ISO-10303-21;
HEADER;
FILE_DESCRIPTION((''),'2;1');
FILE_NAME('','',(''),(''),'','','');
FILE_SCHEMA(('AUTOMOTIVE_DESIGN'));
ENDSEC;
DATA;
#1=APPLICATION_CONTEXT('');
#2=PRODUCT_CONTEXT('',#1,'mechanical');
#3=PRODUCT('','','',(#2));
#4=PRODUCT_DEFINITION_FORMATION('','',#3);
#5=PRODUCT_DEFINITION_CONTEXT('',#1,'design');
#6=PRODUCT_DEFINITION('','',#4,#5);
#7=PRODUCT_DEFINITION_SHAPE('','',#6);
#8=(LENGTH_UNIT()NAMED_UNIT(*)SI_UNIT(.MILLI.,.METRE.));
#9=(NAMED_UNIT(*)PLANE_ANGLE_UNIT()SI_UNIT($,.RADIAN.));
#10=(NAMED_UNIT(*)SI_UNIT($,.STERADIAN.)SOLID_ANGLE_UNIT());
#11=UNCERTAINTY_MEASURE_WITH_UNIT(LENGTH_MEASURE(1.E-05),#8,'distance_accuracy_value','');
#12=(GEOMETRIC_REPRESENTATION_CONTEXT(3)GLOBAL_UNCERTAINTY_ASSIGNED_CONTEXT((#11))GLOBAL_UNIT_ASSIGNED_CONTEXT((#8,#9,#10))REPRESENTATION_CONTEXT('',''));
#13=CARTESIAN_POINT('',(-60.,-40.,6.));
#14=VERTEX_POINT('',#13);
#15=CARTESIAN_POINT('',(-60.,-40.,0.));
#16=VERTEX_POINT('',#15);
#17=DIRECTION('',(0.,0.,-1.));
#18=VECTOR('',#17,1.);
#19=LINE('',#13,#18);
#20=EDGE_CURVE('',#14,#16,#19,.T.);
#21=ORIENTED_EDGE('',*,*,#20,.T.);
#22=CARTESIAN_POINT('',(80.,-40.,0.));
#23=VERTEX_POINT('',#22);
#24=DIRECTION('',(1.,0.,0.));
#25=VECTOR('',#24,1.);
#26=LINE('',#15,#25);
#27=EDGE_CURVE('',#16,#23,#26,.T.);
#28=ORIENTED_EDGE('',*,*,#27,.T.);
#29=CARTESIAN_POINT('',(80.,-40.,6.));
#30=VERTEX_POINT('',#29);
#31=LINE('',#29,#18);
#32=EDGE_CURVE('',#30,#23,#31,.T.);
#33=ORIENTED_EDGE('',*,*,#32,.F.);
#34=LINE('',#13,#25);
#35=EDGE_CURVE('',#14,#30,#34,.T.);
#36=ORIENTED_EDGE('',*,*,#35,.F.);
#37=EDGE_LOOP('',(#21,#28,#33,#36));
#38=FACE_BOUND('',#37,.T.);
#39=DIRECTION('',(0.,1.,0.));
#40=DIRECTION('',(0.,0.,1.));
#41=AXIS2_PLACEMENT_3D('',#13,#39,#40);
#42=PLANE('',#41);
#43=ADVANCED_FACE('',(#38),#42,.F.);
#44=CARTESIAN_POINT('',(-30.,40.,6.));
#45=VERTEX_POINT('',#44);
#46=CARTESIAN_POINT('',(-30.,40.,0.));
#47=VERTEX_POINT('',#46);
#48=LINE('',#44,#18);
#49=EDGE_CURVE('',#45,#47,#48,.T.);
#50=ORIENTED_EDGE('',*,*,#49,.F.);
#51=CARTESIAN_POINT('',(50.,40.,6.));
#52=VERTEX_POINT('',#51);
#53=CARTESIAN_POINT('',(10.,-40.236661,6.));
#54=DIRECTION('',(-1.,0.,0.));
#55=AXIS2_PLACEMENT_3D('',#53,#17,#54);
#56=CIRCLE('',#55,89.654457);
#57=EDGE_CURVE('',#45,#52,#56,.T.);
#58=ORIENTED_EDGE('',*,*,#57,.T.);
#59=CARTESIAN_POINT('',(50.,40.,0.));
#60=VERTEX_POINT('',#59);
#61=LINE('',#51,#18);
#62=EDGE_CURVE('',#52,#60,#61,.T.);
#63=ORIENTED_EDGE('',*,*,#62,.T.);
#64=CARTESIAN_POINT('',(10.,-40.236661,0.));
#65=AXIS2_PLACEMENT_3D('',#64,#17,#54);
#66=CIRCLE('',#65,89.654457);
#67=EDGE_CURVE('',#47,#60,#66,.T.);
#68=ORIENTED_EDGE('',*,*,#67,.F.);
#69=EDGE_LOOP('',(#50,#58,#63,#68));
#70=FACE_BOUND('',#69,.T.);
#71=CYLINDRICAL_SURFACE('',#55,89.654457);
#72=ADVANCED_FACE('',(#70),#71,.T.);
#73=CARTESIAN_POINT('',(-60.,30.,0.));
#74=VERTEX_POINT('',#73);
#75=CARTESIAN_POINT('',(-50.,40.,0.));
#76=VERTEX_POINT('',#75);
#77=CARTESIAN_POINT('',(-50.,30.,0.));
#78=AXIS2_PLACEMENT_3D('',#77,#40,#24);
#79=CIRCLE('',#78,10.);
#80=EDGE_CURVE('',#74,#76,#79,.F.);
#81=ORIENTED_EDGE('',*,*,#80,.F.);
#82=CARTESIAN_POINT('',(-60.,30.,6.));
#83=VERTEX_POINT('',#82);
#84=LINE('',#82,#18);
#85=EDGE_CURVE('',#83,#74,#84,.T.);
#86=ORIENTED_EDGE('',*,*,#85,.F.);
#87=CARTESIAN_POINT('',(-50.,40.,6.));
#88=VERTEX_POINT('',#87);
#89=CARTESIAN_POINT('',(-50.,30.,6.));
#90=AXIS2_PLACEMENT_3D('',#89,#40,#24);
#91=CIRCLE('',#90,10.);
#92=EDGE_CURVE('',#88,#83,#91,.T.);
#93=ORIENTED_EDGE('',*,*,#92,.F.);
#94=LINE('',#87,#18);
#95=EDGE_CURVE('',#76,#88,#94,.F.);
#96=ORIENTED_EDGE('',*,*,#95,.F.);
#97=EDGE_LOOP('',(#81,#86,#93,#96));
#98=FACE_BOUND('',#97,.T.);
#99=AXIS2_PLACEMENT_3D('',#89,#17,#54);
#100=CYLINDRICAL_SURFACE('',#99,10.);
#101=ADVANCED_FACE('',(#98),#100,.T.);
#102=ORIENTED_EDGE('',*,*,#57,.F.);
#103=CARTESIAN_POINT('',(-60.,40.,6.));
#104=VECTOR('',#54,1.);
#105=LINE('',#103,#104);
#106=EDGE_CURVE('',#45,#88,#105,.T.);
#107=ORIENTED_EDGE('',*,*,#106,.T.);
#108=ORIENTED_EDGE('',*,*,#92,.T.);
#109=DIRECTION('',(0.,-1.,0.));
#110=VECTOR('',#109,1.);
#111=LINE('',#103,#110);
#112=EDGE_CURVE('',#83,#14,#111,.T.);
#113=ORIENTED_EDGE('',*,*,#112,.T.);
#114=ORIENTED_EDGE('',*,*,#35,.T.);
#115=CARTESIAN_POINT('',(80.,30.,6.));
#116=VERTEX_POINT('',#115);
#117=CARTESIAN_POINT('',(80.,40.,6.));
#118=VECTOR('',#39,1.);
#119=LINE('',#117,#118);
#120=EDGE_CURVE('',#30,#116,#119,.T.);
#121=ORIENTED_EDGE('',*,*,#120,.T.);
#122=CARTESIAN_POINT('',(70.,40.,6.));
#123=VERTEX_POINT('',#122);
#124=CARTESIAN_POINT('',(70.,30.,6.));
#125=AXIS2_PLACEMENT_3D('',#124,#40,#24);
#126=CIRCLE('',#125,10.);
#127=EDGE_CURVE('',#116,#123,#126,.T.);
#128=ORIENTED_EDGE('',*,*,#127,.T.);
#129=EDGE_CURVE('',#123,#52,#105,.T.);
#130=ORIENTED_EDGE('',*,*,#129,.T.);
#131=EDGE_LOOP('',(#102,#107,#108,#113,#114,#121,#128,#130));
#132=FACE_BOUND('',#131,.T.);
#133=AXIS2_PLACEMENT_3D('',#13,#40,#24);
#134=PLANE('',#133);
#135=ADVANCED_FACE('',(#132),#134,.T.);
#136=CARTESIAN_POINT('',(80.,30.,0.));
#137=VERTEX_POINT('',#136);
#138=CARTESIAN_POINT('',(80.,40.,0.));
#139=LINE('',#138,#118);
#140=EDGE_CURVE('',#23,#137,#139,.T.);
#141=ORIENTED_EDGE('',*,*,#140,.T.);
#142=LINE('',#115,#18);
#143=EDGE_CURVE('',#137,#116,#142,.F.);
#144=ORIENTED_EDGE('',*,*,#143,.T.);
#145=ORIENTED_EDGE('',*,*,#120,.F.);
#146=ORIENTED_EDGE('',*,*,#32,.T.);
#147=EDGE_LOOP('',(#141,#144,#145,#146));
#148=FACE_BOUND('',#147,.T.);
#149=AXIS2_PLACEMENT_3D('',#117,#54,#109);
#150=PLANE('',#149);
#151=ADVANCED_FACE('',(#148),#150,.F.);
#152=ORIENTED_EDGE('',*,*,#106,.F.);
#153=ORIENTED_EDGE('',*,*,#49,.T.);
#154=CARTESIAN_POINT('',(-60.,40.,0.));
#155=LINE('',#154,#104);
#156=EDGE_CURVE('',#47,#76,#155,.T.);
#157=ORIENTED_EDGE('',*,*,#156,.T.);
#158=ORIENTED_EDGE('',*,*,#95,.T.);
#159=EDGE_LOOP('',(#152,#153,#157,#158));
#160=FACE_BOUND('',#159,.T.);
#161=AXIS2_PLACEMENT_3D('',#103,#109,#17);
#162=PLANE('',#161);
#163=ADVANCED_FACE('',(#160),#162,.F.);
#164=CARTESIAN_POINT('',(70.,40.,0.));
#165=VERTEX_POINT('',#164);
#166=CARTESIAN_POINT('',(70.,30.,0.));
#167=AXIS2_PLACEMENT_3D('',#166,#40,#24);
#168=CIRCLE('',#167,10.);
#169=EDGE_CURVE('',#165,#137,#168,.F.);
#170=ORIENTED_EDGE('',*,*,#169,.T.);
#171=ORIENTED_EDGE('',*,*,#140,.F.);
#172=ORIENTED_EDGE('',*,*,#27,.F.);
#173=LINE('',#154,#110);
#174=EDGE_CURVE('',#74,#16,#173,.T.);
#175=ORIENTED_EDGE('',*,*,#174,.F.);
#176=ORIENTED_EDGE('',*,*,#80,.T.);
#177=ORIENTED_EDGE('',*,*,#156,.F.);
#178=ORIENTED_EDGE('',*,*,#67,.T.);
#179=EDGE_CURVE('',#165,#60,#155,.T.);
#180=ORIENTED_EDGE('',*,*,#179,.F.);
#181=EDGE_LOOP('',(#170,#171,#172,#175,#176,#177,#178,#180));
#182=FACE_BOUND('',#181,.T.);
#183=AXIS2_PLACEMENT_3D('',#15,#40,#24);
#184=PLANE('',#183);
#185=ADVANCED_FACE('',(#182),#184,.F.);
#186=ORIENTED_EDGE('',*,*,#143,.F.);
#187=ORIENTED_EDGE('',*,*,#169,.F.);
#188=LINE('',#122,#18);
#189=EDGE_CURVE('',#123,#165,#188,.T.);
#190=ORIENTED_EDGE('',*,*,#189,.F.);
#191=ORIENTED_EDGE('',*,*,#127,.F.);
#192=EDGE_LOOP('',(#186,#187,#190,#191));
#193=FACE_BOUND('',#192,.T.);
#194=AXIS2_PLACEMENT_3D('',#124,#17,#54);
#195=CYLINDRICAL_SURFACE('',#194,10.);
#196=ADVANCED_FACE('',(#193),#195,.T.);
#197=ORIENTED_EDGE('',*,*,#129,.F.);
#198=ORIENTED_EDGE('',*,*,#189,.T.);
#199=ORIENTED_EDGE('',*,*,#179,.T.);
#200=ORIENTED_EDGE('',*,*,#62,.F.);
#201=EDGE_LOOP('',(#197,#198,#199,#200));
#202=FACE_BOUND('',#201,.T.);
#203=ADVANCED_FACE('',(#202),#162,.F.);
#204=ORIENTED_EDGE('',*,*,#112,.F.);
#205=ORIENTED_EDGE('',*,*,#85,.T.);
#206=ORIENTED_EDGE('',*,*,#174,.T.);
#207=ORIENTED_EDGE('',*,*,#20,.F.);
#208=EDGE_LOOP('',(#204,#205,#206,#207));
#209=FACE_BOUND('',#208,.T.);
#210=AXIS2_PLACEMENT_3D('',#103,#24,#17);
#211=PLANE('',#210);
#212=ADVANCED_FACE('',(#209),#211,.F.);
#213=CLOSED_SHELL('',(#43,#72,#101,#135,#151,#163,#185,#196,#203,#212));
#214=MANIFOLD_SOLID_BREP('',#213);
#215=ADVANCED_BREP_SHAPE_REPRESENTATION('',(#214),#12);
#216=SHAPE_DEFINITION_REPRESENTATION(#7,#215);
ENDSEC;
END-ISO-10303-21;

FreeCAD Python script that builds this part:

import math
import FreeCAD as App
import Part
import Sketcher

V = App.Vector
Q = App.Units.Quantity


def edges_at(feature, points):
    """Names of the edges that pass closest to the given points."""
    edges = feature.Shape.Edges
    near = lambda p: min(range(len(edges)), key=lambda i: edges[i].distToShape(Part.Vertex(*p))[0])
    return sorted({f"Edge{near(p) + 1}" for p in points})

doc = App.newDocument("Part")
body = doc.addObject("PartDesign::Body", "Body")

# Sketch on XY plane
sketch1 = body.newObject("Sketcher::SketchObject", "Sketch")
sketch1.AttachmentSupport = (doc.getObject("XY_Plane"), [""])
sketch1.MapMode = "FlatFace"
sketch1.addGeometry(Part.LineSegment(V(-60, 40, 0), V(-60, -40, 0)), False)
sketch1.addGeometry(Part.LineSegment(V(-60, -40, 0), V(80, -40, 0)), False)
sketch1.addGeometry(Part.LineSegment(V(80, -40, 0), V(80, 40, 0)), False)
sketch1.addGeometry(Part.LineSegment(V(80, 40, 0), V(-60, 40, 0)), False)
sketch1.addConstraint(Sketcher.Constraint("Coincident", 0, 2, 1, 1))
sketch1.addConstraint(Sketcher.Constraint("Coincident", 1, 2, 2, 1))
sketch1.addConstraint(Sketcher.Constraint("Coincident", 2, 2, 3, 1))
sketch1.addConstraint(Sketcher.Constraint("Coincident", 3, 2, 0, 1))
sketch1.addConstraint(Sketcher.Constraint("Vertical", 0))
sketch1.addConstraint(Sketcher.Constraint("Horizontal", 1))
sketch1.addConstraint(Sketcher.Constraint("Vertical", 2))
sketch1.addConstraint(Sketcher.Constraint("Horizontal", 3))
sketch1.addConstraint(Sketcher.Constraint("DistanceX", 1, 1, 1, 2, Q("140 mm")))
sketch1.addConstraint(Sketcher.Constraint("DistanceY", 0, 2, 0, 1, Q("80 mm")))
sketch1.addConstraint(Sketcher.Constraint("DistanceX", 0, 2, -1, 1, Q("60 mm")))
sketch1.addConstraint(Sketcher.Constraint("DistanceY", 0, 2, -1, 1, Q("40 mm")))
pad1 = body.newObject("PartDesign::Pad", "Pad")
pad1.Profile = sketch1
pad1.Length = 6
doc.recompute()

fillet = body.newObject("PartDesign::Fillet", "Fillet")
fillet.Base = (pad1, edges_at(pad1, [(-60, 40, 3), (80, 40, 3)]))
fillet.Radius = 10

# Sketch on XY plane
sketch2 = body.newObject("Sketcher::SketchObject", "Sketch001")
sketch2.AttachmentSupport = (doc.getObject("XY_Plane"), [""])
sketch2.MapMode = "FlatFace"
sketch2.addGeometry(Part.LineSegment(V(50, 40, 0), V(-30, 40, 0)), False)
sketch2.addGeometry(Part.ArcOfCircle(Part.Circle(V(10, -40.236661, 0), V(0, 0, 1), 89.654457), math.radians(63.502587), math.radians(116.497413)), False)
sketch2.addConstraint(Sketcher.Constraint("Coincident", 0, 1, 1, 1))
sketch2.addConstraint(Sketcher.Constraint("Coincident", 1, 2, 0, 2))
sketch2.addConstraint(Sketcher.Constraint("Horizontal", 0))
sketch2.addConstraint(Sketcher.Constraint("DistanceX", 0, 2, 0, 1, Q("80 mm")))
sketch2.addConstraint(Sketcher.Constraint("DistanceX", -1, 1, 1, 3, Q("10 mm")))
sketch2.addConstraint(Sketcher.Constraint("DistanceY", -1, 1, 0, 1, Q("40 mm")))
sketch2.addConstraint(Sketcher.Constraint("Radius", 1, Q("89.654457 mm")))
pad2 = body.newObject("PartDesign::Pad", "Pad001")
pad2.Profile = sketch2
pad2.Length = 6

doc.recompute()
